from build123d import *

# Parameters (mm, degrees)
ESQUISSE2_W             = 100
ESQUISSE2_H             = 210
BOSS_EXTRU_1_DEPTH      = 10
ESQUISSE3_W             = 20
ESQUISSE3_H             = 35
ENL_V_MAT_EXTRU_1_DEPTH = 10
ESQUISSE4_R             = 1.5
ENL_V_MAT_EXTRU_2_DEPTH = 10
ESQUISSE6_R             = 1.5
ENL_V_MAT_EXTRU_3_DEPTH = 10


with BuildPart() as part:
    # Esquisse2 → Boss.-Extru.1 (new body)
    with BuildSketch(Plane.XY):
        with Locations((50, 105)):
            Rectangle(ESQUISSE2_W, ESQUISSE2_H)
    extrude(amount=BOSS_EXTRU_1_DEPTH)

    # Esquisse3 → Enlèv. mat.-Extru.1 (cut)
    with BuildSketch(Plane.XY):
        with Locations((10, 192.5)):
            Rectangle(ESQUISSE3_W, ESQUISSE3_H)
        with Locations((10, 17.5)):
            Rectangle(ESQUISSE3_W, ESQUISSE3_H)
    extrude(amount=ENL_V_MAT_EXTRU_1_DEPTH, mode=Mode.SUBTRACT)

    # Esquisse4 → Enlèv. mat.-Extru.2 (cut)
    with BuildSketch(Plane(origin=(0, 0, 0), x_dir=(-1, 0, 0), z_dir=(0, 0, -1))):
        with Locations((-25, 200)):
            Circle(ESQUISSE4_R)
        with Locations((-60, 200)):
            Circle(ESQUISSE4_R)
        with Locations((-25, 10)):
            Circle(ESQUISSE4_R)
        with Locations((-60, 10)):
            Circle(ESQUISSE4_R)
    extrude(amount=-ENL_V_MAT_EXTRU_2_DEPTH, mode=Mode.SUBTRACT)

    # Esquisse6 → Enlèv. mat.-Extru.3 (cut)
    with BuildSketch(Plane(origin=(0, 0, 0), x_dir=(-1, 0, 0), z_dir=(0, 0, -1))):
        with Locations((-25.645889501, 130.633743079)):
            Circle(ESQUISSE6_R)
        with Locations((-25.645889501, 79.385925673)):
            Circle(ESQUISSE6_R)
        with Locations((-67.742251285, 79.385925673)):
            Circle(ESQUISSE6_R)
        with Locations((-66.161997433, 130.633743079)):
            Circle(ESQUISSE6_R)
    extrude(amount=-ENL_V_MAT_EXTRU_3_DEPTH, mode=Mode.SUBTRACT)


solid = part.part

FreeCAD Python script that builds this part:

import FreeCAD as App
import Part
import Sketcher

V = App.Vector


def add_polygon(sketch, points):
    """Adds a closed chain of lines whose ends are joined by coincident constraints."""
    first, n = sketch.GeometryCount, len(points)
    for a, b in zip(points, points[1:] + points[:1]):
        sketch.addGeometry(Part.LineSegment(App.Vector(*a, 0), App.Vector(*b, 0)), False)
    for i in range(n):
        sketch.addConstraint(Sketcher.Constraint("Coincident", first + i, 2, first + (i + 1) % n, 1))

doc = App.newDocument("Part")
body = doc.addObject("PartDesign::Body", "Body")

# Sketch on XY plane
sketch1 = body.newObject("Sketcher::SketchObject", "Sketch")
sketch1.AttachmentSupport = (doc.getObject("XY_Plane"), [""])
sketch1.MapMode = "FlatFace"
add_polygon(sketch1, [(0, 210), (0, 0), (100, 0), (100, 210)])  # lines 0-3
sketch1.addConstraint(Sketcher.Constraint("Vertical", 0))
sketch1.addConstraint(Sketcher.Constraint("Horizontal", 1))
sketch1.addConstraint(Sketcher.Constraint("Vertical", 2))
sketch1.addConstraint(Sketcher.Constraint("Horizontal", 3))
sketch1.addConstraint(Sketcher.Constraint("Coincident", 0, 2, -1, 1))
sketch1.addConstraint(Sketcher.Constraint("DistanceX", 1, 1, 1, 2, 100.0))
sketch1.addConstraint(Sketcher.Constraint("DistanceY", 0, 2, 0, 1, 210.0))
pad1 = body.newObject("PartDesign::Pad", "Pad")
pad1.Profile = sketch1
pad1.Length = 10

# Sketch on XY plane
sketch2 = body.newObject("Sketcher::SketchObject", "Sketch001")
sketch2.AttachmentSupport = (doc.getObject("XY_Plane"), [""])
sketch2.MapMode = "FlatFace"
add_polygon(sketch2, [(0, 210), (0, 175), (20, 175), (20, 210)])  # lines 0-3
add_polygon(sketch2, [(0, 35), (0, 0), (20, 0), (20, 35)])  # lines 4-7
sketch2.addConstraint(Sketcher.Constraint("Vertical", 0))
sketch2.addConstraint(Sketcher.Constraint("Horizontal", 1))
sketch2.addConstraint(Sketcher.Constraint("Vertical", 2))
sketch2.addConstraint(Sketcher.Constraint("Horizontal", 3))
sketch2.addConstraint(Sketcher.Constraint("Vertical", 4))
sketch2.addConstraint(Sketcher.Constraint("Horizontal", 5))
sketch2.addConstraint(Sketcher.Constraint("Vertical", 6))
sketch2.addConstraint(Sketcher.Constraint("Horizontal", 7))
sketch2.addConstraint(Sketcher.Constraint("Coincident", 4, 2, -1, 1))
sketch2.addConstraint(Sketcher.Constraint("PointOnObject", 0, 2, -2))
sketch2.addConstraint(Sketcher.Constraint("Vertical", 2, 2, 5, 2))
sketch2.addConstraint(Sketcher.Constraint("Equal", 2, 4))
sketch2.addConstraint(Sketcher.Constraint("DistanceX", 1, 1, 1, 2, 20.0))
sketch2.addConstraint(Sketcher.Constraint("DistanceY", 0, 2, 0, 1, 35.0))
sketch2.addConstraint(Sketcher.Constraint("DistanceY", -1, 1, 0, 2, 175.0))
pocket1 = body.newObject("PartDesign::Pocket", "Pocket")
pocket1.Profile = sketch2
pocket1.Length = 10
pocket1.Reversed = True

# Sketch on XY plane
sketch3 = body.newObject("Sketcher::SketchObject", "Sketch002")
sketch3.AttachmentSupport = (doc.getObject("XY_Plane"), [""])
sketch3.MapMode = "FlatFace"
sketch3.addGeometry(Part.Circle(V(25, 200, 0), V(0, 0, 1), 1.5), False)
sketch3.addGeometry(Part.Circle(V(60, 200, 0), V(0, 0, 1), 1.5), False)
sketch3.addGeometry(Part.Circle(V(25, 10, 0), V(0, 0, 1), 1.5), False)
sketch3.addGeometry(Part.Circle(V(60, 10, 0), V(0, 0, 1), 1.5), False)
sketch3.addConstraint(Sketcher.Constraint("Equal", 0, 1))
sketch3.addConstraint(Sketcher.Constraint("Equal", 1, 2))
sketch3.addConstraint(Sketcher.Constraint("Equal", 2, 3))
sketch3.addConstraint(Sketcher.Constraint("Horizontal", 0, 3, 1, 3))
sketch3.addConstraint(Sketcher.Constraint("Horizontal", 2, 3, 3, 3))
sketch3.addConstraint(Sketcher.Constraint("Vertical", 0, 3, 2, 3))
sketch3.addConstraint(Sketcher.Constraint("Vertical", 1, 3, 3, 3))
sketch3.addConstraint(Sketcher.Constraint("Diameter", 0, 3.0))
sketch3.addConstraint(Sketcher.Constraint("DistanceX", -1, 1, 0, 3, 25.0))
sketch3.addConstraint(Sketcher.Constraint("DistanceY", -1, 1, 0, 3, 200.0))
sketch3.addConstraint(Sketcher.Constraint("DistanceX", -1, 1, 1, 3, 60.0))
sketch3.addConstraint(Sketcher.Constraint("DistanceY", -1, 1, 2, 3, 10.0))
pocket2 = body.newObject("PartDesign::Pocket", "Pocket001")
pocket2.Profile = sketch3
pocket2.Length = 10
pocket2.Reversed = True

# Sketch on XY plane
sketch4 = body.newObject("Sketcher::SketchObject", "Sketch003")
sketch4.AttachmentSupport = (doc.getObject("XY_Plane"), [""])
sketch4.MapMode = "FlatFace"
sketch4.addGeometry(Part.Circle(V(25.6, 130.6, 0), V(0, 0, 1), 1.5), False)
sketch4.addGeometry(Part.Circle(V(25.6, 79.4, 0), V(0, 0, 1), 1.5), False)
sketch4.addGeometry(Part.Circle(V(67.7, 79.4, 0), V(0, 0, 1), 1.5), False)
sketch4.addGeometry(Part.Circle(V(66.2, 130.6, 0), V(0, 0, 1), 1.5), False)
sketch4.addConstraint(Sketcher.Constraint("Equal", 0, 1))
sketch4.addConstraint(Sketcher.Constraint("Equal", 1, 2))
sketch4.addConstraint(Sketcher.Constraint("Equal", 2, 3))
sketch4.addConstraint(Sketcher.Constraint("Horizontal", 1, 3, 2, 3))
sketch4.addConstraint(Sketcher.Constraint("Horizontal", 0, 3, 3, 3))
sketch4.addConstraint(Sketcher.Constraint("Vertical", 0, 3, 1, 3))
sketch4.addConstraint(Sketcher.Constraint("Diameter", 0, 3.0))
sketch4.addConstraint(Sketcher.Constraint("DistanceX", -1, 1, 0, 3, 25.64589))
sketch4.addConstraint(Sketcher.Constraint("DistanceX", -1, 1, 2, 3, 67.742251))
sketch4.addConstraint(Sketcher.Constraint("DistanceY", -1, 1, 0, 3, 130.633743))
sketch4.addConstraint(Sketcher.Constraint("DistanceY", -1, 1, 1, 3, 79.385926))
sketch4.addConstraint(Sketcher.Constraint("DistanceX", -1, 1, 3, 3, 66.161997))
pocket3 = body.newObject("PartDesign::Pocket", "Pocket002")
pocket3.Profile = sketch4
pocket3.Length = 10
pocket3.Reversed = True

doc.recompute()
